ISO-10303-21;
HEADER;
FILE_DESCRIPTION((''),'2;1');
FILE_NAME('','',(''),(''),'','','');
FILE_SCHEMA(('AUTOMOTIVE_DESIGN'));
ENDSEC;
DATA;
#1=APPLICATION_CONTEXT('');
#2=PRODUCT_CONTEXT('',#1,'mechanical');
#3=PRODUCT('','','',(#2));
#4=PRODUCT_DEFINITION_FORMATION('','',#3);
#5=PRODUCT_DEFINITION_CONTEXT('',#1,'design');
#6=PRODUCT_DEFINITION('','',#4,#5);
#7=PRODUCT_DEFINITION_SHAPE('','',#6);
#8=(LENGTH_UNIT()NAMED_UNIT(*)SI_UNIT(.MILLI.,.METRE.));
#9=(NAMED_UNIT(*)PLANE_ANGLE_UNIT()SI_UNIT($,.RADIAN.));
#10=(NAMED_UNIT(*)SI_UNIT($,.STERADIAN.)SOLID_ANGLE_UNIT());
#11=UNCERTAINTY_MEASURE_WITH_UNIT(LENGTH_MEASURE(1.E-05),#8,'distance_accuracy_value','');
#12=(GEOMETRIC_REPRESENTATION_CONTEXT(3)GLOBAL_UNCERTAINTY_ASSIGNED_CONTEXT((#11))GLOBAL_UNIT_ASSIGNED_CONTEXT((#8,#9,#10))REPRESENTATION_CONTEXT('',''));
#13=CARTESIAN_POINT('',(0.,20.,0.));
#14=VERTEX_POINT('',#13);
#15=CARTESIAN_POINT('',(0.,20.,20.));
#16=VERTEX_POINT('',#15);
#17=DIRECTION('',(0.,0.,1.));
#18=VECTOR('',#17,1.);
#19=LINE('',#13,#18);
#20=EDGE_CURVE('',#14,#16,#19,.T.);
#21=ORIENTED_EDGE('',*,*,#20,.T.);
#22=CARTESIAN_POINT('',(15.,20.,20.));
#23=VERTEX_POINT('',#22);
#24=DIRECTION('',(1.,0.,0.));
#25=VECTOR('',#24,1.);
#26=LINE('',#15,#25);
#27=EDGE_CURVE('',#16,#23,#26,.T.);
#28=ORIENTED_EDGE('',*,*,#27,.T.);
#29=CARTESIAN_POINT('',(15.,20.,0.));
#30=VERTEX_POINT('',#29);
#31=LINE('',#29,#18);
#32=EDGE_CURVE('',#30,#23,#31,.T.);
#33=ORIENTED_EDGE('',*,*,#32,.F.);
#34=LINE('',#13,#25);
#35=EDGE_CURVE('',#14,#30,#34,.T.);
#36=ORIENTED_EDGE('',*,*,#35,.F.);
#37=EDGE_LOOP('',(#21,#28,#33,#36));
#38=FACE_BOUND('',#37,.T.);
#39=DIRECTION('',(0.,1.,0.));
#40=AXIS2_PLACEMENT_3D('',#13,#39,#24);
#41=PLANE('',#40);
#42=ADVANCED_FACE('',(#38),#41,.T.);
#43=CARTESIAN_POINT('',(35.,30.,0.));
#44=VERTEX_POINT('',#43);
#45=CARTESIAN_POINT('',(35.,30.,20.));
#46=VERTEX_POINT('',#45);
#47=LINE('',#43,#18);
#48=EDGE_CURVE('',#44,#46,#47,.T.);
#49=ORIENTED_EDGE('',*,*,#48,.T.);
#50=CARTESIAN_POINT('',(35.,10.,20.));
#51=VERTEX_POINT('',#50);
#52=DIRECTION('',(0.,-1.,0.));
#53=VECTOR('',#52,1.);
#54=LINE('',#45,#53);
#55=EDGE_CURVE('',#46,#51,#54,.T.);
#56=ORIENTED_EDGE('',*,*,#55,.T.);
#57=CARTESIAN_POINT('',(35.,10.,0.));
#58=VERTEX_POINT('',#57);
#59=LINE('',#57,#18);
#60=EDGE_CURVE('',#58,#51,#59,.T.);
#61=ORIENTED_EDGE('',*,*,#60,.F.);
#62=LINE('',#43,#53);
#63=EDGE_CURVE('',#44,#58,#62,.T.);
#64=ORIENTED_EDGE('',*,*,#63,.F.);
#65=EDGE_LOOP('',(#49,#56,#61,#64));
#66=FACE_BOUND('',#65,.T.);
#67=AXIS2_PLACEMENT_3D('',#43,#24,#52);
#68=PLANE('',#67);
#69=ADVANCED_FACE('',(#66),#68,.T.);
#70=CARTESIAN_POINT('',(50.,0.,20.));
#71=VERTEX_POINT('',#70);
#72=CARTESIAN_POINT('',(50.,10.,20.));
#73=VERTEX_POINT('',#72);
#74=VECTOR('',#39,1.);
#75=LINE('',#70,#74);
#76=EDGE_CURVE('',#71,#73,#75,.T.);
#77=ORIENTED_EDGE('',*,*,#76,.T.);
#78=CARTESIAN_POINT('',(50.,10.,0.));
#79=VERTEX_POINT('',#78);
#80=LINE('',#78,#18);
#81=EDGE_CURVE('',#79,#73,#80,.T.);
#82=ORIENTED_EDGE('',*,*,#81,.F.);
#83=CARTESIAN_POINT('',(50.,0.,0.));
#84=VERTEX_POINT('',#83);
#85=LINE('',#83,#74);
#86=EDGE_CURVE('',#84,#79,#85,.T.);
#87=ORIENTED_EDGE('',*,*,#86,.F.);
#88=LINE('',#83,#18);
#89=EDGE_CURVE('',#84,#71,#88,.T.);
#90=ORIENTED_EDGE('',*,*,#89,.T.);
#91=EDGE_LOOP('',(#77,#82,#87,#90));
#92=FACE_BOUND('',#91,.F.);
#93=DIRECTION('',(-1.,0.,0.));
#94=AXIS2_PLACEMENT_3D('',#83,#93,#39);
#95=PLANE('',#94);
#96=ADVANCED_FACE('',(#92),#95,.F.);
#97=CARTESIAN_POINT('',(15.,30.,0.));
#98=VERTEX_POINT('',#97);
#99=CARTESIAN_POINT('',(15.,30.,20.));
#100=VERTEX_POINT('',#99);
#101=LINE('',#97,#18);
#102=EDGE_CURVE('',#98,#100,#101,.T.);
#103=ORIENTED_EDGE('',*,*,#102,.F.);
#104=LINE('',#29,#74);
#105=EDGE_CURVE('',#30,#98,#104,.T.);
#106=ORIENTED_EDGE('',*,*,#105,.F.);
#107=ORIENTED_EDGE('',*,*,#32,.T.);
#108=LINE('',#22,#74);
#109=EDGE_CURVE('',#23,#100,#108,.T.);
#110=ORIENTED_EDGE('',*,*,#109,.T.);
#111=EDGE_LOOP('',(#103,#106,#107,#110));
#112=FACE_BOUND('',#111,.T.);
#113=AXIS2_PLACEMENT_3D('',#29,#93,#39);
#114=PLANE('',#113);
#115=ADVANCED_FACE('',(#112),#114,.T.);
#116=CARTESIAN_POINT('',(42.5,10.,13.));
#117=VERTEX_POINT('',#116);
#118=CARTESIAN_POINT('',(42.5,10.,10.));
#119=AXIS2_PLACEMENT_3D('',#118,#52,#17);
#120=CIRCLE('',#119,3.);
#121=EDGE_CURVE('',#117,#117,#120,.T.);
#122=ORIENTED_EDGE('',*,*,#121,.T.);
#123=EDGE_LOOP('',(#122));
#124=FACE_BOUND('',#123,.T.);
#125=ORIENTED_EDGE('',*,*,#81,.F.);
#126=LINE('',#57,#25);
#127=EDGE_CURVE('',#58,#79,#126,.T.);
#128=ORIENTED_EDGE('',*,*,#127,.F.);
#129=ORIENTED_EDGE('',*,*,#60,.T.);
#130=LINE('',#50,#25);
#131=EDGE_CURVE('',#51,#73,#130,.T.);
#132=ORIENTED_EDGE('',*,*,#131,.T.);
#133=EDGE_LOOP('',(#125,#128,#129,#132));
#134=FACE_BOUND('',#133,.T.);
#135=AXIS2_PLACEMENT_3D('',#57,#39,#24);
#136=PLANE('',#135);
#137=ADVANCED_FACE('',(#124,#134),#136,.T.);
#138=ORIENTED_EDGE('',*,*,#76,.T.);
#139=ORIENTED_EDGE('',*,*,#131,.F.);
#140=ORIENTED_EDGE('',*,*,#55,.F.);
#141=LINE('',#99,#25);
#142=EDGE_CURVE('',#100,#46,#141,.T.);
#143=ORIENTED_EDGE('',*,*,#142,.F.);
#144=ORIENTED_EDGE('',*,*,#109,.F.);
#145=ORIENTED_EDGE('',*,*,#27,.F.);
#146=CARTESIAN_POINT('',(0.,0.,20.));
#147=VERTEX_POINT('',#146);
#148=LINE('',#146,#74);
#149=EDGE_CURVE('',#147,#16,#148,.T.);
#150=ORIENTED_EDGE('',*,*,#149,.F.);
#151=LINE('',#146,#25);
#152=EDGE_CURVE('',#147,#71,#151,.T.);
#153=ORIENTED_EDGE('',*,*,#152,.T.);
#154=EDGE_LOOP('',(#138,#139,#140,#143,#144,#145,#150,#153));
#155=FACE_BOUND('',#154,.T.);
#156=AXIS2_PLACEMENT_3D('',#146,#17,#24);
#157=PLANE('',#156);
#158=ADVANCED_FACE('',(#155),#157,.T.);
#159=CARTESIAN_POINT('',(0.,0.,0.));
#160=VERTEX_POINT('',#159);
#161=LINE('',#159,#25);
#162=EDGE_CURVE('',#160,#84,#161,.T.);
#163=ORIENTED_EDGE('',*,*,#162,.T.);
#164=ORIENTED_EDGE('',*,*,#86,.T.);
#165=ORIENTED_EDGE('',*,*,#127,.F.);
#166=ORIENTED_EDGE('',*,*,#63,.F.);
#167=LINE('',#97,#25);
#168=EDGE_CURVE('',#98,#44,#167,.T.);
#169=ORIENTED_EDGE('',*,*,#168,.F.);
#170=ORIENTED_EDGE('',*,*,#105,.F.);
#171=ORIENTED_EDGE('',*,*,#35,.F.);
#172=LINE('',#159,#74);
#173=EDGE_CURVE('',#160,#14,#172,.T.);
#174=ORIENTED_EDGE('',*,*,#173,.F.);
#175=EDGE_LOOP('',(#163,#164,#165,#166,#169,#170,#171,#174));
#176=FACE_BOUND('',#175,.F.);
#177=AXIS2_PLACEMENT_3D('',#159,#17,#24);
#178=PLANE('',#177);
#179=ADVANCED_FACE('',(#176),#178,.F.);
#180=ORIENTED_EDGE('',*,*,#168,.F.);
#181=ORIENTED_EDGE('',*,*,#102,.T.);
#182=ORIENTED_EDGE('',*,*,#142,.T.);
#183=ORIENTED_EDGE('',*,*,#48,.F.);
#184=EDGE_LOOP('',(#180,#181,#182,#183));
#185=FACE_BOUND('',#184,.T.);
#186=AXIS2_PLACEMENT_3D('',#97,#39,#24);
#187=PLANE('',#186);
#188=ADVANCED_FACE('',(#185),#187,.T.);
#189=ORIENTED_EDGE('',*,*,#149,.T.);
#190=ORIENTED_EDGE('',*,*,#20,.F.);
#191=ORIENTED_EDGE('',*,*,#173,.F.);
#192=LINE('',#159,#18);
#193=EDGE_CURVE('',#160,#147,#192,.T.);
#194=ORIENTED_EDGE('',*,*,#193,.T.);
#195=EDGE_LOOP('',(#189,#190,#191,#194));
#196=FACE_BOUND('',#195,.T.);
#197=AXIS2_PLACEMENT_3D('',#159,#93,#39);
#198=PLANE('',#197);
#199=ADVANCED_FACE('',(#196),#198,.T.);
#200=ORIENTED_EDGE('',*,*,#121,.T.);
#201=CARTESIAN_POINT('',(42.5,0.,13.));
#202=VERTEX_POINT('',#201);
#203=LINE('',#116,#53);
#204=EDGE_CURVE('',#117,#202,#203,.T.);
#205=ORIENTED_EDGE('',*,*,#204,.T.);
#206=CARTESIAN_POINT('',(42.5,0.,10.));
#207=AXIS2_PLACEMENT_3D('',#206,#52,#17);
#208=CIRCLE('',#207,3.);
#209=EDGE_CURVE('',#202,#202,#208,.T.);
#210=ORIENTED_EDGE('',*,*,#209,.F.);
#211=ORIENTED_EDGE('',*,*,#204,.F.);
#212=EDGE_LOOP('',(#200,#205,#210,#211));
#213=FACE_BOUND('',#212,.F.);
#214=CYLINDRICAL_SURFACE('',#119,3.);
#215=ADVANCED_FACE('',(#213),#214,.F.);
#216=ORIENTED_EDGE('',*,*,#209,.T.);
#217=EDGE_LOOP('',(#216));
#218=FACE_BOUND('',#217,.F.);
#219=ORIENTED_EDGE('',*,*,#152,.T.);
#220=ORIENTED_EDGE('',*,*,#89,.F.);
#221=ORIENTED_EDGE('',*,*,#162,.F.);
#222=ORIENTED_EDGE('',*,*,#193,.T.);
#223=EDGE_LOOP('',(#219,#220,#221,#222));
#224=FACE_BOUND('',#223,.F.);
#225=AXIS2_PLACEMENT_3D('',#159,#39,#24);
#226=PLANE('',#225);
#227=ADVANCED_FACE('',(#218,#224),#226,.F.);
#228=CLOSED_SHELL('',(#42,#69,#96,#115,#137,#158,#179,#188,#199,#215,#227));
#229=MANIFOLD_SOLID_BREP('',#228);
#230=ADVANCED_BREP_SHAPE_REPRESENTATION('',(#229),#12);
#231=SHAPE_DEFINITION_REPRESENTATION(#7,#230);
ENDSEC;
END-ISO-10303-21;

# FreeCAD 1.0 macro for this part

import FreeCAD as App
import Part
import Sketcher

V = App.Vector


def add_polygon(sketch, points):
    """Adds a closed chain of lines whose ends are joined by coincident constraints."""
    first, n = sketch.GeometryCount, len(points)
    for a, b in zip(points, points[1:] + points[:1]):
        sketch.addGeometry(Part.LineSegment(App.Vector(*a, 0), App.Vector(*b, 0)), False)
    for i in range(n):
        sketch.addConstraint(Sketcher.Constraint("Coincident", first + i, 2, first + (i + 1) % n, 1))

doc = App.newDocument("Part")
body = doc.addObject("PartDesign::Body", "Body")

# Sketch on XY plane
sketch1 = body.newObject("Sketcher::SketchObject", "Sketch")
sketch1.AttachmentSupport = (doc.getObject("XY_Plane"), [""])
sketch1.MapMode = "FlatFace"
add_polygon(sketch1, [(0, 20), (0, 0), (50, 0), (50, 10), (35, 10), (35, 30), (15, 30), (15, 20)])  # lines 0-7
sketch1.addConstraint(Sketcher.Constraint("Vertical", 0))
sketch1.addConstraint(Sketcher.Constraint("Horizontal", 1))
sketch1.addConstraint(Sketcher.Constraint("Vertical", 2))
sketch1.addConstraint(Sketcher.Constraint("Horizontal", 3))
sketch1.addConstraint(Sketcher.Constraint("Vertical", 4))
sketch1.addConstraint(Sketcher.Constraint("Horizontal", 5))
sketch1.addConstraint(Sketcher.Constraint("Vertical", 6))
sketch1.addConstraint(Sketcher.Constraint("Horizontal", 7))
sketch1.addConstraint(Sketcher.Constraint("Coincident", 0, 2, -1, 1))
sketch1.addConstraint(Sketcher.Constraint("Equal", 3, 7))
sketch1.addConstraint(Sketcher.Constraint("Equal", 5, 0))
sketch1.addConstraint(Sketcher.Constraint("Equal", 0, 4))
sketch1.addConstraint(Sketcher.Constraint("DistanceX", 1, 1, 1, 2, 50.0))
sketch1.addConstraint(Sketcher.Constraint("DistanceX", 3, 2, 3, 1, 15.0))
sketch1.addConstraint(Sketcher.Constraint("DistanceY", 2, 1, 2, 2, 10.0))
pad1 = body.newObject("PartDesign::Pad", "Pad")
pad1.Profile = sketch1
pad1.Length = 20

# Sketch on XZ plane
sketch2 = body.newObject("Sketcher::SketchObject", "Sketch001")
sketch2.AttachmentSupport = (doc.getObject("XZ_Plane"), [""])
sketch2.MapMode = "FlatFace"
sketch2.AttachmentOffset = App.Placement(V(0, 0, -10), App.Rotation())
sketch2.addGeometry(Part.Circle(V(42.5, 10, 0), V(0, 0, 1), 3), False)
sketch2.addConstraint(Sketcher.Constraint("Diameter", 0, 6.0))
sketch2.addConstraint(Sketcher.Constraint("DistanceY", -1, 1, 0, 3, 10.0))
sketch2.addConstraint(Sketcher.Constraint("DistanceX", -1, 1, 0, 3, 42.5))
doc.recompute()
hole = body.newObject("PartDesign::Hole", "Hole")
hole.Profile = sketch2
hole.ThreadType = "None"
hole.Diameter = 6
hole.DepthType = "ThroughAll"
hole.Reversed = True

doc.recompute()
